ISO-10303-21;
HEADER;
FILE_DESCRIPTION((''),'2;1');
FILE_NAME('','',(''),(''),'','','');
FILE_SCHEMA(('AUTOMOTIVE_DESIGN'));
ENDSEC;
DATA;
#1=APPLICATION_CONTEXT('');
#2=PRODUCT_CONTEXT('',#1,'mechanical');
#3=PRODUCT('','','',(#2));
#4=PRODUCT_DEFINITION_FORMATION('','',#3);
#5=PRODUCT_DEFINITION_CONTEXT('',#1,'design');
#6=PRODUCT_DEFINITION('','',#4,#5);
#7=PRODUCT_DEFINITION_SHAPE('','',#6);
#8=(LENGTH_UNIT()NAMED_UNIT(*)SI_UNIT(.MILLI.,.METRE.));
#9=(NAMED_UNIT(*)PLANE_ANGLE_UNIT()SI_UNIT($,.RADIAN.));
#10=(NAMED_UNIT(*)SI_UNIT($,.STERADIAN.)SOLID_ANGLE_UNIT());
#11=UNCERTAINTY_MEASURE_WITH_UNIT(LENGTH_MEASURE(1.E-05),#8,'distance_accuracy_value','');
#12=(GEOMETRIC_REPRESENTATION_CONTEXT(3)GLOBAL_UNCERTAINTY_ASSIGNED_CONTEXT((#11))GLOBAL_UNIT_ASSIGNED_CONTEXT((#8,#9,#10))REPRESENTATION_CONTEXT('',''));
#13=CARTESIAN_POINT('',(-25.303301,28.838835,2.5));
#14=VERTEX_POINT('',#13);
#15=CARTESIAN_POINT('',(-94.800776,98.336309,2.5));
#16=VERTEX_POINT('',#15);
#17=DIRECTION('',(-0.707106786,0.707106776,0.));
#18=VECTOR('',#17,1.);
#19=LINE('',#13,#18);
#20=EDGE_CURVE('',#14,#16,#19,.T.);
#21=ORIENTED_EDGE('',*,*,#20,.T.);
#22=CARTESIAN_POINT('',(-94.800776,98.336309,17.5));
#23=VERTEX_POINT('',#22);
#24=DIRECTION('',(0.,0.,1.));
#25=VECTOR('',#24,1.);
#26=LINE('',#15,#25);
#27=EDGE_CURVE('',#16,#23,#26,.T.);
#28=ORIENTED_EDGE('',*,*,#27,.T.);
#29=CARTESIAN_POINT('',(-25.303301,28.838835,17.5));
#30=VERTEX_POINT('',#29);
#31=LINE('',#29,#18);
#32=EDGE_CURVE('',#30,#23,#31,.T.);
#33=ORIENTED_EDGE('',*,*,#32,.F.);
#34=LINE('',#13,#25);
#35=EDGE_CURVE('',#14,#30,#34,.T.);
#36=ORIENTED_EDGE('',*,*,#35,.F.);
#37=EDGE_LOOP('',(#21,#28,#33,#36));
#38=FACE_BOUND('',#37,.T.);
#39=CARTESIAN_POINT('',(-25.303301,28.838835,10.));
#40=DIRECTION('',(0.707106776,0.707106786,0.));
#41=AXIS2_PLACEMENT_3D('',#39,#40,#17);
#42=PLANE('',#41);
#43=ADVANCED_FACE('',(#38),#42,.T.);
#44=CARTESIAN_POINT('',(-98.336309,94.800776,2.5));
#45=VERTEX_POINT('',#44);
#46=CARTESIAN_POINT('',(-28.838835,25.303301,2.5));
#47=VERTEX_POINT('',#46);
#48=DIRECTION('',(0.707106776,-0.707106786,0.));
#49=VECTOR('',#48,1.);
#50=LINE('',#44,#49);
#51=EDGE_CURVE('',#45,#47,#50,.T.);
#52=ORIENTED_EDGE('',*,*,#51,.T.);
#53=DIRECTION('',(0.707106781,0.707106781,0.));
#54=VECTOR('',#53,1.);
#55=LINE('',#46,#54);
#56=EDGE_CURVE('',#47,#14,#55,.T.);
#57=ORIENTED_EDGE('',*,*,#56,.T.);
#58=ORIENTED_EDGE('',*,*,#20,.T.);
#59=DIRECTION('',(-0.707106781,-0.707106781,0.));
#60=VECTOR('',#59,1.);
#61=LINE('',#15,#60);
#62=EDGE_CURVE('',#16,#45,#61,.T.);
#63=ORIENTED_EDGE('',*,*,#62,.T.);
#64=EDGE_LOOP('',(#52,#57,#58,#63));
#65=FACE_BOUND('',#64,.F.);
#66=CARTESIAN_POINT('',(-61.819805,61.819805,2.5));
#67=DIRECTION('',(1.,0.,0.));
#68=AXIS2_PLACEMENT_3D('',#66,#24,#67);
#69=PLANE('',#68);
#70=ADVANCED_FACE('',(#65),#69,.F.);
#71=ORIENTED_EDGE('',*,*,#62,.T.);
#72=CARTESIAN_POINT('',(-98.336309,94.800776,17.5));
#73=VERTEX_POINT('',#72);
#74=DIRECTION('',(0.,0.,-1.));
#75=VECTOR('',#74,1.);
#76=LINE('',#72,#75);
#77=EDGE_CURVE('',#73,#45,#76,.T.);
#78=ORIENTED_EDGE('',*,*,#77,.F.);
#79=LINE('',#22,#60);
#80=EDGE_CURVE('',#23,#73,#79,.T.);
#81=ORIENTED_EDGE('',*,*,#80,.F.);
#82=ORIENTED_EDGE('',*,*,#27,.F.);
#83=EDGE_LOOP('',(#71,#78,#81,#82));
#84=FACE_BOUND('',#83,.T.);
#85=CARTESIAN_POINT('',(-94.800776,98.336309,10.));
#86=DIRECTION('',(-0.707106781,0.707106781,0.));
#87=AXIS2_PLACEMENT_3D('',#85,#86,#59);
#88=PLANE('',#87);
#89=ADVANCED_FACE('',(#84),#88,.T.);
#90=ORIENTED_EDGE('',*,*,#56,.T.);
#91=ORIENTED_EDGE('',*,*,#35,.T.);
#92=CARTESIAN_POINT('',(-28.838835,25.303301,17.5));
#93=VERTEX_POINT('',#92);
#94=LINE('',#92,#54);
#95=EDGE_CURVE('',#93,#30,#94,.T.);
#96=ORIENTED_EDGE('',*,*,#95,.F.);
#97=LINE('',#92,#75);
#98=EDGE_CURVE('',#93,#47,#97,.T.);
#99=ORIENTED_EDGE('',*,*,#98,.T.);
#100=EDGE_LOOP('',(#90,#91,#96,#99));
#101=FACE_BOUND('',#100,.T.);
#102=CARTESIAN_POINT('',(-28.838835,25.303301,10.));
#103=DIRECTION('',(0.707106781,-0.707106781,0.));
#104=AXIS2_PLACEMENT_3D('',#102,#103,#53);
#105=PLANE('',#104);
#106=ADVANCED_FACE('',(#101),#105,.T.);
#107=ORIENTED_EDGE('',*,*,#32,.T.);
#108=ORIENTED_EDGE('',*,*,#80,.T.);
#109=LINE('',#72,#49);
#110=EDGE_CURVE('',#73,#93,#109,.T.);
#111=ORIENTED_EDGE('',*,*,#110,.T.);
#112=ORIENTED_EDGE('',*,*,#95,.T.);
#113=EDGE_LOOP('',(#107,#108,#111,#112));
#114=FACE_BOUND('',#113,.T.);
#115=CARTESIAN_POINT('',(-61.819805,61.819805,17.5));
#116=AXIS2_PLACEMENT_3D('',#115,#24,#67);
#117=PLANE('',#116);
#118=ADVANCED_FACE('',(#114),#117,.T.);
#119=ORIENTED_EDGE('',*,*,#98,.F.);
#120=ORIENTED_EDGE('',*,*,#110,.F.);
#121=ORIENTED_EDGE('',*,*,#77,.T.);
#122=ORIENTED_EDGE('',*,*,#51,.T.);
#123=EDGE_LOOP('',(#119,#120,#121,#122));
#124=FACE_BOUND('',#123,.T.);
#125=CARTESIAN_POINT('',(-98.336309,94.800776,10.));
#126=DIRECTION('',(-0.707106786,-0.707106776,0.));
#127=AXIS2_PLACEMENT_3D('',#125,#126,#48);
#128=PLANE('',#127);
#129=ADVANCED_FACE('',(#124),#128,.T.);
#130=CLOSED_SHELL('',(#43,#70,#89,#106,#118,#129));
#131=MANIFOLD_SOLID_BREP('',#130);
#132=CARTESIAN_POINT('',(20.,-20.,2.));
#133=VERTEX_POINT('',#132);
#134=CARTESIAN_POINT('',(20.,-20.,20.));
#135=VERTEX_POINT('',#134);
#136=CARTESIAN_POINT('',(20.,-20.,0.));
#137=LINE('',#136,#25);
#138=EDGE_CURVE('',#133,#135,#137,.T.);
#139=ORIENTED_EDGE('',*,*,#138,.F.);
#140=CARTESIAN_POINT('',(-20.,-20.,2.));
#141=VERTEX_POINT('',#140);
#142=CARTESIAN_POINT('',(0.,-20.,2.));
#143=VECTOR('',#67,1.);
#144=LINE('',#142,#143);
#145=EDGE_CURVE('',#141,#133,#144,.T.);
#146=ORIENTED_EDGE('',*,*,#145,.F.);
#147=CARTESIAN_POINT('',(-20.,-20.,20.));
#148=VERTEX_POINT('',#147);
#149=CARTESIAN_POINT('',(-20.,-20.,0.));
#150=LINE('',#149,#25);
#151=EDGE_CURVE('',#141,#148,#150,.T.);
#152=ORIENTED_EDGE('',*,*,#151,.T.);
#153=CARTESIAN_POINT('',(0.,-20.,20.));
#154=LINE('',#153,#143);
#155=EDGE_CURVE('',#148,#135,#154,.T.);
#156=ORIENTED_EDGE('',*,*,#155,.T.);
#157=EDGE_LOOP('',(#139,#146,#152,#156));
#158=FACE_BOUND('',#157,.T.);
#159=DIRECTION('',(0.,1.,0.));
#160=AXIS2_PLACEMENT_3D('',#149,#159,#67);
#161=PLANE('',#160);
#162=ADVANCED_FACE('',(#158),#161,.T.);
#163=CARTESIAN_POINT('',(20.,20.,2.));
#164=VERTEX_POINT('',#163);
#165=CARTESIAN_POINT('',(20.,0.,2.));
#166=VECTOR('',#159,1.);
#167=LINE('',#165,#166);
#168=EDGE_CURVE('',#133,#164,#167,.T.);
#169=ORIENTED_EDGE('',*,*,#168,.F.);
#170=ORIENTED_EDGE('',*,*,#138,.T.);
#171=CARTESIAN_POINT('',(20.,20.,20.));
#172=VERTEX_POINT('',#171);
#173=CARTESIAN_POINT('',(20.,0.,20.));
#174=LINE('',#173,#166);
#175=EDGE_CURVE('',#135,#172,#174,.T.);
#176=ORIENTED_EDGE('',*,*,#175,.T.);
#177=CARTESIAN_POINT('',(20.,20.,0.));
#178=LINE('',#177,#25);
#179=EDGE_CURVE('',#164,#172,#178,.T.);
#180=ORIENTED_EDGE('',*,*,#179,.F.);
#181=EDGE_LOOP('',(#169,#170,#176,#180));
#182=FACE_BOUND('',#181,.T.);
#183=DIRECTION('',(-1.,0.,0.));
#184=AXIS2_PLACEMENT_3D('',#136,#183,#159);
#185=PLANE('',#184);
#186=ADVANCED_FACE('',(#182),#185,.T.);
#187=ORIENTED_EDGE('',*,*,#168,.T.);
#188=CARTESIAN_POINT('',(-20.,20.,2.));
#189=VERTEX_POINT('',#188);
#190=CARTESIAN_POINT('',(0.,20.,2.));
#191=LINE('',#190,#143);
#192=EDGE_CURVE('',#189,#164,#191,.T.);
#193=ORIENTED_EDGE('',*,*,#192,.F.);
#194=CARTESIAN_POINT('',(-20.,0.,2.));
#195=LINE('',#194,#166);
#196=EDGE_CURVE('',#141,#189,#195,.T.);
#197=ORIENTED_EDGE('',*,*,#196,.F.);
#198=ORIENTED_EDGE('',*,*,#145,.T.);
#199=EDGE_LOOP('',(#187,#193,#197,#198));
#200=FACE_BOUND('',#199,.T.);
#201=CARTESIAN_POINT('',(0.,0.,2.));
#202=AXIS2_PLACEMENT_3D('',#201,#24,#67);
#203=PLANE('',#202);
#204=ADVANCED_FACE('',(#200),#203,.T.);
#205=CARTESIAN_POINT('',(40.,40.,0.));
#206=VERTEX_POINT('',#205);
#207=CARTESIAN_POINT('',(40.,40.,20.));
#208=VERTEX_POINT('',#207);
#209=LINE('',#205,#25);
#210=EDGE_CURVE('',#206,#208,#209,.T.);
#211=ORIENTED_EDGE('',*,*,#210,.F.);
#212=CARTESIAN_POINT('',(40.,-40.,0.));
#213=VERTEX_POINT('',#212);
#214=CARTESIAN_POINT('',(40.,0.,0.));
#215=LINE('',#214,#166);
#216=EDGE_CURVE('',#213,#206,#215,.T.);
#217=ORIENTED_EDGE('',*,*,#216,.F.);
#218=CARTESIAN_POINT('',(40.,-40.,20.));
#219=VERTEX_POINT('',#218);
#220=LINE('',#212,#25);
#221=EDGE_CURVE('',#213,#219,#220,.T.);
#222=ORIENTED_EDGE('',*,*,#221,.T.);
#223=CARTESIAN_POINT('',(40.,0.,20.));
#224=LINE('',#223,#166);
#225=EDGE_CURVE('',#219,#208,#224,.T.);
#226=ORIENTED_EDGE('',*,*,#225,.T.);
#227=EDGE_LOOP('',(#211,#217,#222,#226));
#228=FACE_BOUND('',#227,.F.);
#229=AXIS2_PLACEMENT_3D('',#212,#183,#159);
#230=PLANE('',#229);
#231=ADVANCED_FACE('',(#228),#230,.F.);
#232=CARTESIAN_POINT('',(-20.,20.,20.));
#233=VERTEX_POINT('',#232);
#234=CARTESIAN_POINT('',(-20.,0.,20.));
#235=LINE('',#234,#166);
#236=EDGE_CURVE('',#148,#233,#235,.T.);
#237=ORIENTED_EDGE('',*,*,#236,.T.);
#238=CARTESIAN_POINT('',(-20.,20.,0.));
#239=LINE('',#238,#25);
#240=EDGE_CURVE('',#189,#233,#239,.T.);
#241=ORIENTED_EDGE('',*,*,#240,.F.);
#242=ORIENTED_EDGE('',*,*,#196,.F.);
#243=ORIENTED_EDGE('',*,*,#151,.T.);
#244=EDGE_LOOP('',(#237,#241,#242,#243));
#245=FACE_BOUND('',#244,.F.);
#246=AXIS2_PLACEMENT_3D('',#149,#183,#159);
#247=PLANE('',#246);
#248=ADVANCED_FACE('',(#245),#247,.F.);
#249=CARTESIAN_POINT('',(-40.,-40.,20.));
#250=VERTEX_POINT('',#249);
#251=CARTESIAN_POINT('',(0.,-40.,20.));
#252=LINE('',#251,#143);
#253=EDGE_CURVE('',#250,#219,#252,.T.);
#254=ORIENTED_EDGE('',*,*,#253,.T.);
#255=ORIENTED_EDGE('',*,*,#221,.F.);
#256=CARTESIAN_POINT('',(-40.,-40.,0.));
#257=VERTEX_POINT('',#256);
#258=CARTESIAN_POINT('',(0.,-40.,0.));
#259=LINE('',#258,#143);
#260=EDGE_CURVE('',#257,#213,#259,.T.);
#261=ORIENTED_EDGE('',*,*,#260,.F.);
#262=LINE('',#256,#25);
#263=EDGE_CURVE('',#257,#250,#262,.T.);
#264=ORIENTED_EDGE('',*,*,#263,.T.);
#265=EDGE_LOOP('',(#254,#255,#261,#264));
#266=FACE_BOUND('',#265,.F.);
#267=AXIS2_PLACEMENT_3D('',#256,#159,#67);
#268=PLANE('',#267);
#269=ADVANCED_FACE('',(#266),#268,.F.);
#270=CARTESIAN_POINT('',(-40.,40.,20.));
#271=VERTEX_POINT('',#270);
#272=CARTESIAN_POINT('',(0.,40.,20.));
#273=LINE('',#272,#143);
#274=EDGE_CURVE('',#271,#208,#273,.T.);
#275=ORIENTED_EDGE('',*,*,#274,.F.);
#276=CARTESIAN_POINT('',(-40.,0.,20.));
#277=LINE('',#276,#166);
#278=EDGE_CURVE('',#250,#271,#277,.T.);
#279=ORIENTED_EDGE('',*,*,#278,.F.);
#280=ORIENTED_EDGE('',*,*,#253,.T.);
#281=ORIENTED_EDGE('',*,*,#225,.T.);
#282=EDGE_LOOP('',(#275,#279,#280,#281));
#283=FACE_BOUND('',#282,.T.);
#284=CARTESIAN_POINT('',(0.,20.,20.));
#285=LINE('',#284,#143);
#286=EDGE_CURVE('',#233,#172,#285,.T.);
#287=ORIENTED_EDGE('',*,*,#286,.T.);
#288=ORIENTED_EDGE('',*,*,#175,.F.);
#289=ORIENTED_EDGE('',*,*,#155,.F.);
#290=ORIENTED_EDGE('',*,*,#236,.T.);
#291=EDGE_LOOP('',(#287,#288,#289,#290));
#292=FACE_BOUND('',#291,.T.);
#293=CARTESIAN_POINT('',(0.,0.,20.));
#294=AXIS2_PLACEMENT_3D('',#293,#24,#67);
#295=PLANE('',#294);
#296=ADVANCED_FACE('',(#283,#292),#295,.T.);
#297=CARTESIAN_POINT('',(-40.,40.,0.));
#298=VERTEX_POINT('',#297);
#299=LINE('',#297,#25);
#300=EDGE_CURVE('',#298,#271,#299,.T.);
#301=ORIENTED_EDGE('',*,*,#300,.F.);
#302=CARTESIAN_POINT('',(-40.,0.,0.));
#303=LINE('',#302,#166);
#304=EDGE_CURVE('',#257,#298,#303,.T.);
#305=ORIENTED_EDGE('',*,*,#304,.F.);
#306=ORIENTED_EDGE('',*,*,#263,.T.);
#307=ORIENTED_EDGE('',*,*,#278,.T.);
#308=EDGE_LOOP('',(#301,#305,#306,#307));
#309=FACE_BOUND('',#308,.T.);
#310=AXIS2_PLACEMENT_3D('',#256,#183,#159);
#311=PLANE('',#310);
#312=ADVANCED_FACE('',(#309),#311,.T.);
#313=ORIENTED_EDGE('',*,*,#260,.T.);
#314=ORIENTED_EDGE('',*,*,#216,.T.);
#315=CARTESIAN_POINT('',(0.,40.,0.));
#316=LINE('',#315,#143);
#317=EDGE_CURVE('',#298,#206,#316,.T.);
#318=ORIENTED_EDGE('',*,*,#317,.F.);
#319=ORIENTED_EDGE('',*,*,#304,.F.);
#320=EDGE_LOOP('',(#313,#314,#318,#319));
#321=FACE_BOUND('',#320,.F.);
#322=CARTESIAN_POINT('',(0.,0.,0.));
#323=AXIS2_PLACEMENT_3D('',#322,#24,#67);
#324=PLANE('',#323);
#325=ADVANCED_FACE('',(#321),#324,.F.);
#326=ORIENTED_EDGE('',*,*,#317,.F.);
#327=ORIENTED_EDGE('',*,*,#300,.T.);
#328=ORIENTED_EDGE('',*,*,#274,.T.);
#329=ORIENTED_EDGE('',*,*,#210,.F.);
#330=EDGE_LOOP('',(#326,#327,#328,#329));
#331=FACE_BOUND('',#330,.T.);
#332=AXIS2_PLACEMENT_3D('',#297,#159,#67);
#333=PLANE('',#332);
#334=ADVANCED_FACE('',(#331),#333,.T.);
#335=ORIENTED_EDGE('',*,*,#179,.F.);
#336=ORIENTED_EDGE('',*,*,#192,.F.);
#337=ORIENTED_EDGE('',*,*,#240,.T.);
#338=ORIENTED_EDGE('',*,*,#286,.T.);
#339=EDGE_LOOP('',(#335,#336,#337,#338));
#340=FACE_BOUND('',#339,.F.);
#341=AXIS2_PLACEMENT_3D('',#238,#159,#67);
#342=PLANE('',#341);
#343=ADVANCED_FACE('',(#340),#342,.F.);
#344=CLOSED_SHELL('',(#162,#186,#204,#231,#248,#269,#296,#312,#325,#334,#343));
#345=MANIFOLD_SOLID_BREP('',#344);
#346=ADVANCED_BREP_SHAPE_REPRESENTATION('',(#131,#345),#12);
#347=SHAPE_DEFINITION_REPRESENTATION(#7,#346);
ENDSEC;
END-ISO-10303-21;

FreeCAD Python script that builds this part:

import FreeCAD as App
import Part
import Sketcher

V = App.Vector
Q = App.Units.Quantity

doc = App.newDocument("Part")
body = doc.addObject("PartDesign::Body", "Body")

# Sketch on XY plane
sketch1 = body.newObject("Sketcher::SketchObject", "Sketch")
sketch1.AttachmentSupport = (doc.getObject("XY_Plane"), [""])
sketch1.MapMode = "FlatFace"
sketch1.addGeometry(Part.LineSegment(V(-40, 40, 0), V(-40, -40, 0)), False)
sketch1.addGeometry(Part.LineSegment(V(-40, -40, 0), V(40, -40, 0)), False)
sketch1.addGeometry(Part.LineSegment(V(40, -40, 0), V(40, 40, 0)), False)
sketch1.addGeometry(Part.LineSegment(V(40, 40, 0), V(-40, 40, 0)), False)
sketch1.addGeometry(Part.LineSegment(V(20, -20, 0), V(-20, -20, 0)), False)
sketch1.addGeometry(Part.LineSegment(V(-20, -20, 0), V(-20, 20, 0)), False)
sketch1.addGeometry(Part.LineSegment(V(-20, 20, 0), V(20, 20, 0)), False)
sketch1.addGeometry(Part.LineSegment(V(20, 20, 0), V(20, -20, 0)), False)
sketch1.addConstraint(Sketcher.Constraint("Coincident", 0, 2, 1, 1))
sketch1.addConstraint(Sketcher.Constraint("Coincident", 1, 2, 2, 1))
sketch1.addConstraint(Sketcher.Constraint("Coincident", 2, 2, 3, 1))
sketch1.addConstraint(Sketcher.Constraint("Coincident", 3, 2, 0, 1))
sketch1.addConstraint(Sketcher.Constraint("Coincident", 4, 2, 5, 1))
sketch1.addConstraint(Sketcher.Constraint("Coincident", 5, 2, 6, 1))
sketch1.addConstraint(Sketcher.Constraint("Coincident", 6, 2, 7, 1))
sketch1.addConstraint(Sketcher.Constraint("Coincident", 7, 2, 4, 1))
sketch1.addConstraint(Sketcher.Constraint("Vertical", 0))
sketch1.addConstraint(Sketcher.Constraint("Horizontal", 1))
sketch1.addConstraint(Sketcher.Constraint("Vertical", 2))
sketch1.addConstraint(Sketcher.Constraint("Horizontal", 3))
sketch1.addConstraint(Sketcher.Constraint("Horizontal", 4))
sketch1.addConstraint(Sketcher.Constraint("Vertical", 5))
sketch1.addConstraint(Sketcher.Constraint("Horizontal", 6))
sketch1.addConstraint(Sketcher.Constraint("Vertical", 7))
sketch1.addConstraint(Sketcher.Constraint("Symmetric", 0, 2, 2, 2, -1, 1))
sketch1.addConstraint(Sketcher.Constraint("Symmetric", 4, 2, 6, 2, -1, 1))
sketch1.addConstraint(Sketcher.Constraint("Equal", 3, 0))
sketch1.addConstraint(Sketcher.Constraint("Equal", 6, 5))
sketch1.addConstraint(Sketcher.Constraint("DistanceX", 1, 1, 1, 2, 80.0))
sketch1.addConstraint(Sketcher.Constraint("DistanceX", 4, 2, 4, 1, 40.0))
pad1 = body.newObject("PartDesign::Pad", "Pad")
pad1.Profile = sketch1
pad1.Length = 20

# Sketch on XY plane
sketch2 = body.newObject("Sketcher::SketchObject", "Sketch001")
sketch2.AttachmentSupport = (doc.getObject("XY_Plane"), [""])
sketch2.MapMode = "FlatFace"
sketch2.addGeometry(Part.LineSegment(V(-20, 20, 0), V(-20, -20, 0)), False)
sketch2.addGeometry(Part.LineSegment(V(-20, -20, 0), V(20, -20, 0)), False)
sketch2.addGeometry(Part.LineSegment(V(20, -20, 0), V(20, 20, 0)), False)
sketch2.addGeometry(Part.LineSegment(V(20, 20, 0), V(-20, 20, 0)), False)
sketch2.addConstraint(Sketcher.Constraint("Coincident", 0, 2, 1, 1))
sketch2.addConstraint(Sketcher.Constraint("Coincident", 1, 2, 2, 1))
sketch2.addConstraint(Sketcher.Constraint("Coincident", 2, 2, 3, 1))
sketch2.addConstraint(Sketcher.Constraint("Coincident", 3, 2, 0, 1))
sketch2.addConstraint(Sketcher.Constraint("Vertical", 0))
sketch2.addConstraint(Sketcher.Constraint("Horizontal", 1))
sketch2.addConstraint(Sketcher.Constraint("Vertical", 2))
sketch2.addConstraint(Sketcher.Constraint("Horizontal", 3))
sketch2.addConstraint(Sketcher.Constraint("Symmetric", 0, 2, 2, 2, -1, 1))
sketch2.addConstraint(Sketcher.Constraint("Equal", 3, 0))
sketch2.addConstraint(Sketcher.Constraint("DistanceX", 1, 1, 1, 2, 40.0))
pad2 = body.newObject("PartDesign::Pad", "Pad001")
pad2.Profile = sketch2
pad2.Length = 2
body2 = doc.addObject("PartDesign::Body", "Body001")

# Sketch on XY plane
sketch3 = body2.newObject("Sketcher::SketchObject", "Sketch002")
sketch3.AttachmentSupport = (doc.getObject("XY_Plane001"), [""])
sketch3.MapMode = "FlatFace"
sketch3.AttachmentOffset = App.Placement(V(0, 0, 10), App.Rotation())
sketch3.addGeometry(Part.LineSegment(V(-28.8, 25.3, 0), V(-25.3, 28.8, 0)), False)
sketch3.addGeometry(Part.LineSegment(V(-25.3, 28.8, 0), V(-94.8, 98.3, 0)), False)
sketch3.addGeometry(Part.LineSegment(V(-94.8, 98.3, 0), V(-98.3, 94.8, 0)), False)
sketch3.addGeometry(Part.LineSegment(V(-98.3, 94.8, 0), V(-28.8, 25.3, 0)), False)
sketch3.addConstraint(Sketcher.Constraint("Coincident", 0, 2, 1, 1))
sketch3.addConstraint(Sketcher.Constraint("Coincident", 1, 2, 2, 1))
sketch3.addConstraint(Sketcher.Constraint("Coincident", 2, 2, 3, 1))
sketch3.addConstraint(Sketcher.Constraint("Coincident", 3, 2, 0, 1))
sketch3.addConstraint(Sketcher.Constraint("Perpendicular", 0, 1))
sketch3.addConstraint(Sketcher.Constraint("Perpendicular", 1, 2))
sketch3.addConstraint(Sketcher.Constraint("Perpendicular", 2, 3))
sketch3.addConstraint(Sketcher.Constraint("Angle", 0, Q("45 deg")))
sketch3.addConstraint(Sketcher.Constraint("Distance", 0, 5.0))
sketch3.addConstraint(Sketcher.Constraint("DistanceX", 0, 2, -1, 1, 25.303301))
sketch3.addConstraint(Sketcher.Constraint("DistanceY", -1, 1, 3, 2, 25.303301))
sketch3.addConstraint(Sketcher.Constraint("Distance", 1, 98.284271))
pad3 = body2.newObject("PartDesign::Pad", "Pad002")
pad3.Profile = sketch3
pad3.Length = 15
pad3.Midplane = True

doc.recompute()
